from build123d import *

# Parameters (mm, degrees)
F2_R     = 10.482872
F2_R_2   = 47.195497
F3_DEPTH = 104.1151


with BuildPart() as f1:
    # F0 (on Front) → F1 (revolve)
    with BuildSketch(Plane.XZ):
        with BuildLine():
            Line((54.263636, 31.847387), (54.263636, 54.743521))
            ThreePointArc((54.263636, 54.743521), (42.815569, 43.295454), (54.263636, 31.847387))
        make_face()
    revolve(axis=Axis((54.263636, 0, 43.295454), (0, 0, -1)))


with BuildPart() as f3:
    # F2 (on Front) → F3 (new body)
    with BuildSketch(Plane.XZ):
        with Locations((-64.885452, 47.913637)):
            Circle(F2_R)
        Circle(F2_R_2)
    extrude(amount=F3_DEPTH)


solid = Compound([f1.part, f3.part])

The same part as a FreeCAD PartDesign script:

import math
import FreeCAD as App
import Part
import Sketcher

V = App.Vector

doc = App.newDocument("Part")
body = doc.addObject("PartDesign::Body", "Body")

# Sketch on XZ plane
sketch1 = body.newObject("Sketcher::SketchObject", "Sketch")
sketch1.AttachmentSupport = (doc.getObject("XZ_Plane"), [""])
sketch1.MapMode = "FlatFace"
sketch1.addGeometry(Part.LineSegment(V(54, 32, 0), V(54, 55, 0)), False)
sketch1.addGeometry(Part.ArcOfCircle(Part.Circle(V(54, 43, 0), V(0, 0, 1), 11), math.radians(90), math.radians(270)), False)
sketch1.addGeometry(Part.LineSegment(V(54, 55, 0), V(54, 32, 0)), True)  # axis
sketch1.addConstraint(Sketcher.Constraint("Coincident", 0, 1, 1, 2))
sketch1.addConstraint(Sketcher.Constraint("Coincident", 1, 1, 0, 2))
sketch1.addConstraint(Sketcher.Constraint("Vertical", 0))
sketch1.addConstraint(Sketcher.Constraint("Vertical", 2))
sketch1.addConstraint(Sketcher.Constraint("Coincident", 2, 1, 1, 1))
sketch1.addConstraint(Sketcher.Constraint("Vertical", 1, 3, 0, 1))
sketch1.addConstraint(Sketcher.Constraint("Equal", 0, 2))
sketch1.addConstraint(Sketcher.Constraint("Radius", 1, 11.448067))
sketch1.addConstraint(Sketcher.Constraint("DistanceY", -1, 1, 1, 1, 54.743521))
sketch1.addConstraint(Sketcher.Constraint("DistanceX", -1, 1, 1, 3, 54.263636))
revolution = body.newObject("PartDesign::Revolution", "Revolution")
revolution.Profile = sketch1
revolution.ReferenceAxis = (sketch1, ["Axis0"])
revolution.Angle = 360
body2 = doc.addObject("PartDesign::Body", "Body001")
body2.AllowCompound = True

# Sketch on XZ plane
sketch2 = body2.newObject("Sketcher::SketchObject", "Sketch001")
sketch2.AttachmentSupport = (doc.getObject("XZ_Plane001"), [""])
sketch2.MapMode = "FlatFace"
sketch2.addGeometry(Part.Circle(V(-65, 48, 0), V(0, 0, 1), 10), False)
sketch2.addGeometry(Part.Circle(V(0, 0, 0), V(0, 0, 1), 47), False)
sketch2.addConstraint(Sketcher.Constraint("Coincident", 1, 3, -1, 1))
sketch2.addConstraint(Sketcher.Constraint("Diameter", 0, 20.965744))
sketch2.addConstraint(Sketcher.Constraint("Diameter", 1, 94.390994))
sketch2.addConstraint(Sketcher.Constraint("DistanceX", 0, 3, -1, 1, 64.885452))
sketch2.addConstraint(Sketcher.Constraint("DistanceY", -1, 1, 0, 3, 47.913637))
pad1 = body2.newObject("PartDesign::Pad", "Pad")
pad1.Profile = sketch2
pad1.Length = 104.1151

doc.recompute()
